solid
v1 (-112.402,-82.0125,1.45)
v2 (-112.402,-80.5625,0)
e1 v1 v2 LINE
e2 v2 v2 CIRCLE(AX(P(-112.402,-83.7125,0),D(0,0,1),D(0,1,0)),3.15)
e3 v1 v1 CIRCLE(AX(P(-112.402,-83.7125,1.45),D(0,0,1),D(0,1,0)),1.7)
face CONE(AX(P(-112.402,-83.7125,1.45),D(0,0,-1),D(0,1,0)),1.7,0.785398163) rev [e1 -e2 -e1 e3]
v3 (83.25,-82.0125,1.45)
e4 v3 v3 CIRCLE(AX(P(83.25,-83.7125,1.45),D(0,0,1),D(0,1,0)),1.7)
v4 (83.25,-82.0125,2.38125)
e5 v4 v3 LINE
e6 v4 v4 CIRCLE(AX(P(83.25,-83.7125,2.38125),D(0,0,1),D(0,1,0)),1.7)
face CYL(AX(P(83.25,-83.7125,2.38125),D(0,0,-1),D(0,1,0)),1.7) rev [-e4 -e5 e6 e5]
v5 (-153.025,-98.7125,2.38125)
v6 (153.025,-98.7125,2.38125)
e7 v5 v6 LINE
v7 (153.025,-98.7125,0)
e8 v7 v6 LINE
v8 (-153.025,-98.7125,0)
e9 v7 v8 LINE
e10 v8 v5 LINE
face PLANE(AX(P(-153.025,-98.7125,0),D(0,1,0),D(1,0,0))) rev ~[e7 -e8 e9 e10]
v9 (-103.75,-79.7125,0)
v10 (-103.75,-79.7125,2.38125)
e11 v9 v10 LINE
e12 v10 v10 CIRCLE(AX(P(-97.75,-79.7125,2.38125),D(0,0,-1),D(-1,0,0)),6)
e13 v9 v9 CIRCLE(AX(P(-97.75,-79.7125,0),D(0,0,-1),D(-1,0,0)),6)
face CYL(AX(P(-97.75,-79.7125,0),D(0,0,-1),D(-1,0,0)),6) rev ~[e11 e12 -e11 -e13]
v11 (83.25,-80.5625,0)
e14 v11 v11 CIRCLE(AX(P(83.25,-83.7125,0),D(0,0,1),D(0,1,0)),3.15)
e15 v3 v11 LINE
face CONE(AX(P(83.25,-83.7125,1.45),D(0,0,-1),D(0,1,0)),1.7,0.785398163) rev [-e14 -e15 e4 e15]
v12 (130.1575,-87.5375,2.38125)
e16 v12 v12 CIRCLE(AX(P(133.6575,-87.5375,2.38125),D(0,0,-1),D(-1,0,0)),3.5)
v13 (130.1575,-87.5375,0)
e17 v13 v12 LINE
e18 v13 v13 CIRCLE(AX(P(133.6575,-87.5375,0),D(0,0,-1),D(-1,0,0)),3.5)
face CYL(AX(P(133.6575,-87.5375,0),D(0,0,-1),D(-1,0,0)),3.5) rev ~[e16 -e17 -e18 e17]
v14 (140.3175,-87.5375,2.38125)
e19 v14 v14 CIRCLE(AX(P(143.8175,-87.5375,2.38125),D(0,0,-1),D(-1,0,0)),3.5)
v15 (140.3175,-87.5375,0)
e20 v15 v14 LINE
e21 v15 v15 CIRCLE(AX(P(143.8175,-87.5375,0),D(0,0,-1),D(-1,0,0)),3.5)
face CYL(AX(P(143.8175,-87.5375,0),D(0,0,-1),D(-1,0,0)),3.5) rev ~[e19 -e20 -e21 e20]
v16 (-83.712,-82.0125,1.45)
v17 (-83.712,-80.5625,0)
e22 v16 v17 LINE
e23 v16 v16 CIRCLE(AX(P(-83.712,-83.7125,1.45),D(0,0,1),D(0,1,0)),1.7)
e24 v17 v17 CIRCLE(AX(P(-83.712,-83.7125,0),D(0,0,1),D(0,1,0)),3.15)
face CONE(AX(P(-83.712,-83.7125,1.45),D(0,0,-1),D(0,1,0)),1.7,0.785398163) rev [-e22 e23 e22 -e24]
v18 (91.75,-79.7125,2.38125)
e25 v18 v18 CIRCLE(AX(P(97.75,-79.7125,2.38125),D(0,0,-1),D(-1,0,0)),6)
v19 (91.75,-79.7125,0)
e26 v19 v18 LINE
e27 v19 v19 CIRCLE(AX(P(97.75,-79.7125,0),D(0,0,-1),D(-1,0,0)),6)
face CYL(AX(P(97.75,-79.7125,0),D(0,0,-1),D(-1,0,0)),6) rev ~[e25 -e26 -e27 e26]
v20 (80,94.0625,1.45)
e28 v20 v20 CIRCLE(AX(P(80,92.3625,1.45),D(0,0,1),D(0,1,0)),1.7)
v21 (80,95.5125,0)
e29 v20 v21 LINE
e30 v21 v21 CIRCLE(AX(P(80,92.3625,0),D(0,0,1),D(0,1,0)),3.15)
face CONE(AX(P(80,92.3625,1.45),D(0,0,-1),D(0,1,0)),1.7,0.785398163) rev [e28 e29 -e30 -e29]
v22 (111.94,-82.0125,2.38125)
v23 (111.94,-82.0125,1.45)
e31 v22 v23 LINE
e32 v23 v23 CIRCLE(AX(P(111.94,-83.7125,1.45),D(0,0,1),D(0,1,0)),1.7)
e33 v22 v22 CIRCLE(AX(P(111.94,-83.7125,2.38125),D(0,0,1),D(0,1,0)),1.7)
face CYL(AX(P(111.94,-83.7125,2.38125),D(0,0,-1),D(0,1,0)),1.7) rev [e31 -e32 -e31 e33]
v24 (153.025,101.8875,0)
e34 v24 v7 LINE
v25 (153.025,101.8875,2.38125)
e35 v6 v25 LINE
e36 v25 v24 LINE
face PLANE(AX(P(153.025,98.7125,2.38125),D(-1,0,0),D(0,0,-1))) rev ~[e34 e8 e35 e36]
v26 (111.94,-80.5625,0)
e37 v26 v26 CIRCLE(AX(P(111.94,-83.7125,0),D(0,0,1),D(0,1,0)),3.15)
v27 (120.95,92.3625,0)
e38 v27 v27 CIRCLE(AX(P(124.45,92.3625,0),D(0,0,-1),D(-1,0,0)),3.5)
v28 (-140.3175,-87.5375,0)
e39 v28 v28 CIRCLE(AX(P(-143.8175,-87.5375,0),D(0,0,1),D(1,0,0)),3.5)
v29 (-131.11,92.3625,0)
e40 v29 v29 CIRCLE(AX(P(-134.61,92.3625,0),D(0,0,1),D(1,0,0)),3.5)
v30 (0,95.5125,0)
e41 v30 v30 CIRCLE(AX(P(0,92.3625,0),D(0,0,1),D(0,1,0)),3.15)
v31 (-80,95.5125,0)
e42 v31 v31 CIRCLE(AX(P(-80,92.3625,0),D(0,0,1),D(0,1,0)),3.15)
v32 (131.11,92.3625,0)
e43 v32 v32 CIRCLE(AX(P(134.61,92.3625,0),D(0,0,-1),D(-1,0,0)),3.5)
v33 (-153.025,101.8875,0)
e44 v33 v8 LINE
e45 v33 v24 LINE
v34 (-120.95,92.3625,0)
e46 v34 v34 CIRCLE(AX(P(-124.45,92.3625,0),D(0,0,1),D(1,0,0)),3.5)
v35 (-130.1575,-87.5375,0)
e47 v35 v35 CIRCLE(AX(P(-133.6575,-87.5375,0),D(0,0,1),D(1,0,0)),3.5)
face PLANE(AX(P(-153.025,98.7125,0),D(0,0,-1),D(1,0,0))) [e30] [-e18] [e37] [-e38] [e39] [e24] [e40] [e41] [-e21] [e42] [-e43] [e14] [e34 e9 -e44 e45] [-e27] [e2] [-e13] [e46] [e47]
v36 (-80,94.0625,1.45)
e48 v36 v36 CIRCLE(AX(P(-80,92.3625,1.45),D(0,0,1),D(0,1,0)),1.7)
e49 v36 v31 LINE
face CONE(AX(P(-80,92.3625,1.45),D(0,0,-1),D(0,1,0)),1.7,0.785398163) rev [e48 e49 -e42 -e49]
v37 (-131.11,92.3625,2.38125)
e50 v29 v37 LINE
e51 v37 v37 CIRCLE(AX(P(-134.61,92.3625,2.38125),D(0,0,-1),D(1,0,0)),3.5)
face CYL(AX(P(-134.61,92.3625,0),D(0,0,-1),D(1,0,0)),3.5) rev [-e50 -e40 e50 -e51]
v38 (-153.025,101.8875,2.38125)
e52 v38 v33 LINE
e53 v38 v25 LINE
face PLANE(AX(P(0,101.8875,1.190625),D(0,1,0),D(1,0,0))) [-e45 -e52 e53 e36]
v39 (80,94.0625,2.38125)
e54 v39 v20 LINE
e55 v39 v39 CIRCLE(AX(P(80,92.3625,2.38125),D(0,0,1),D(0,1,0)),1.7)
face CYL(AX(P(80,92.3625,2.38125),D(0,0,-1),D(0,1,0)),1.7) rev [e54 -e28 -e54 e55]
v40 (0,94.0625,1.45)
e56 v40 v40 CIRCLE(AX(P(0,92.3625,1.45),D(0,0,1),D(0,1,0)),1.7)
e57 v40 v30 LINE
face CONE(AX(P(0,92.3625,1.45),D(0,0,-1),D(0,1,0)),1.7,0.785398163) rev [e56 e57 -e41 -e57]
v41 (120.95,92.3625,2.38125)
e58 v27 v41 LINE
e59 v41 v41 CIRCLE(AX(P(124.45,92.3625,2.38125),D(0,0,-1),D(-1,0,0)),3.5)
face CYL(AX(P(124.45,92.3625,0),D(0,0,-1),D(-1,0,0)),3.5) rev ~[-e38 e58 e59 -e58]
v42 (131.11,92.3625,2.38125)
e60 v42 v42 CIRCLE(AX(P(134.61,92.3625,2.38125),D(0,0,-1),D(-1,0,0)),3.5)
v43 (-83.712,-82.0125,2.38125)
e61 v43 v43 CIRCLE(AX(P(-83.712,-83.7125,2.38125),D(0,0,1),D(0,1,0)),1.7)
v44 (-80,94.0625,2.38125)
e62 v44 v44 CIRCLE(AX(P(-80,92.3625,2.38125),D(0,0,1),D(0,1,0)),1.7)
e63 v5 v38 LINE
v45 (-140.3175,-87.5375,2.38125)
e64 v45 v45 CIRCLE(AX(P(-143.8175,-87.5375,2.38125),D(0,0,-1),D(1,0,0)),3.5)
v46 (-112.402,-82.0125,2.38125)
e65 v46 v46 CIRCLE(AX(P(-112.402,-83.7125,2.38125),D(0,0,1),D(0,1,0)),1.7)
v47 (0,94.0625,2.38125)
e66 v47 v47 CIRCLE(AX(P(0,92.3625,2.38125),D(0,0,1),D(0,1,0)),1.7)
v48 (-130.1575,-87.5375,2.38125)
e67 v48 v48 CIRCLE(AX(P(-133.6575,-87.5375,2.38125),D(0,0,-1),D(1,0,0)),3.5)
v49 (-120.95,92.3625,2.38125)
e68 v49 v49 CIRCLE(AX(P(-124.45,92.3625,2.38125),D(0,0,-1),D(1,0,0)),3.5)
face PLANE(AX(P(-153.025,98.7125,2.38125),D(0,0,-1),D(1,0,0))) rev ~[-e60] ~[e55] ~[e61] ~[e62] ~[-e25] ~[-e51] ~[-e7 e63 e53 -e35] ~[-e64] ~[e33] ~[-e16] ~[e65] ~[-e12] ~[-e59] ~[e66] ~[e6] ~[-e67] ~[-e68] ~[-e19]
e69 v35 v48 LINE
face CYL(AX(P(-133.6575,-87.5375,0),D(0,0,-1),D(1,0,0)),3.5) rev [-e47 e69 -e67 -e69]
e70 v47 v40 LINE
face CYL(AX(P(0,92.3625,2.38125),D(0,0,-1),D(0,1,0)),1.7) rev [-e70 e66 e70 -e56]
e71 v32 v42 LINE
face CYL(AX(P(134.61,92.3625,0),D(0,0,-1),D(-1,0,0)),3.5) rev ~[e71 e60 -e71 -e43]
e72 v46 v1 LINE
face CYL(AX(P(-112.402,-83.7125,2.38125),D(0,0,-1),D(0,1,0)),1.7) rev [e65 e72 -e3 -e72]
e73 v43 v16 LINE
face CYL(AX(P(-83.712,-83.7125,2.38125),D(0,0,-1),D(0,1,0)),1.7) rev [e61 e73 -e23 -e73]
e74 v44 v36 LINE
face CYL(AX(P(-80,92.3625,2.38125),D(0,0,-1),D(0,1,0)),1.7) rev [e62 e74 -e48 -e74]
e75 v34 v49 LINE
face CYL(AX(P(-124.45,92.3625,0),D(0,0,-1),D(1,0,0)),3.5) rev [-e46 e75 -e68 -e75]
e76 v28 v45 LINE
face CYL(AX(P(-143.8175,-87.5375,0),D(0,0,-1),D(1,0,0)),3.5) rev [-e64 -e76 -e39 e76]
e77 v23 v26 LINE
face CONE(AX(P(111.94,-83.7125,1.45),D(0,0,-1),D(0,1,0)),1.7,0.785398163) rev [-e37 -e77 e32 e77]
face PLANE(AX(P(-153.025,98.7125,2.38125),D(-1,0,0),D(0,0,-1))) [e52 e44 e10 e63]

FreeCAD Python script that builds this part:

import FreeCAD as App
import Part
import Sketcher

V = App.Vector
Q = App.Units.Quantity


def add_polygon(sketch, points):
    """Adds a closed chain of lines whose ends are joined by coincident constraints."""
    first, n = sketch.GeometryCount, len(points)
    for a, b in zip(points, points[1:] + points[:1]):
        sketch.addGeometry(Part.LineSegment(App.Vector(*a, 0), App.Vector(*b, 0)), False)
    for i in range(n):
        sketch.addConstraint(Sketcher.Constraint("Coincident", first + i, 2, first + (i + 1) % n, 1))

doc = App.newDocument("Part")
body = doc.addObject("PartDesign::Body", "Body")

# Sketch on XY plane
sketch1 = body.newObject("Sketcher::SketchObject", "Sketch")
sketch1.AttachmentSupport = (doc.getObject("XY_Plane"), [""])
sketch1.MapMode = "FlatFace"
add_polygon(sketch1, [(-153, -99), (153, -99), (153, 99), (-153, 99)])  # lines 0-3
sketch1.addConstraint(Sketcher.Constraint("Horizontal", 0))
sketch1.addConstraint(Sketcher.Constraint("Vertical", 1))
sketch1.addConstraint(Sketcher.Constraint("Horizontal", 2))
sketch1.addConstraint(Sketcher.Constraint("Vertical", 3))
sketch1.addConstraint(Sketcher.Constraint("Symmetric", 0, 2, 2, 2, -1, 1))
sketch1.addConstraint(Sketcher.Constraint("DistanceX", 0, 1, 0, 2, Q("306.05 mm")))
sketch1.addConstraint(Sketcher.Constraint("DistanceY", 1, 1, 1, 2, Q("197.425 mm")))
pad1 = body.newObject("PartDesign::Pad", "Pad")
pad1.Profile = sketch1
pad1.Length = 2.38125

# Sketch on XZ plane
sketch2 = body.newObject("Sketcher::SketchObject", "Sketch001")
sketch2.AttachmentSupport = (doc.getObject("XZ_Plane"), [""])
sketch2.MapMode = "FlatFace"
sketch2.AttachmentOffset = App.Placement(V(0, 0, -98.7125), App.Rotation())
add_polygon(sketch2, [(-153, 0), (-153, 2.4), (153, 2.4), (153, 0)])  # lines 0-3
sketch2.addConstraint(Sketcher.Constraint("Vertical", 0))
sketch2.addConstraint(Sketcher.Constraint("Horizontal", 1))
sketch2.addConstraint(Sketcher.Constraint("Vertical", 2))
sketch2.addConstraint(Sketcher.Constraint("Horizontal", 3))
sketch2.addConstraint(Sketcher.Constraint("Symmetric", 2, 2, 3, 2, -1, 1))
sketch2.addConstraint(Sketcher.Constraint("DistanceX", 1, 1, 1, 2, Q("306.05 mm")))
sketch2.addConstraint(Sketcher.Constraint("DistanceY", 0, 1, 0, 2, Q("2.38125 mm")))
pad2 = body.newObject("PartDesign::Pad", "Pad001")
pad2.Profile = sketch2
pad2.Length = 3.175
pad2.Reversed = True

# Sketch on XY plane
sketch3 = body.newObject("Sketcher::SketchObject", "Sketch002")
sketch3.AttachmentSupport = (doc.getObject("XY_Plane"), [""])
sketch3.MapMode = "FlatFace"
sketch3.addGeometry(Part.Circle(V(134.6, 92.4, 0), V(0, 0, 1), 3.5), False)
sketch3.addGeometry(Part.Circle(V(124.5, 92.4, 0), V(0, 0, 1), 3.5), False)
sketch3.addGeometry(Part.Circle(V(143.8, -87.5, 0), V(0, 0, 1), 3.5), False)
sketch3.addGeometry(Part.Circle(V(133.7, -87.5, 0), V(0, 0, 1), 3.5), False)
sketch3.addConstraint(Sketcher.Constraint("Equal", 0, 1))
sketch3.addConstraint(Sketcher.Constraint("Equal", 1, 2))
sketch3.addConstraint(Sketcher.Constraint("Equal", 2, 3))
sketch3.addConstraint(Sketcher.Constraint("Horizontal", 0, 3, 1, 3))
sketch3.addConstraint(Sketcher.Constraint("Horizontal", 2, 3, 3, 3))
sketch3.addConstraint(Sketcher.Constraint("Diameter", 0, Q("7 mm")))
sketch3.addConstraint(Sketcher.Constraint("DistanceY", 2, 3, 0, 3, Q("179.9 mm")))
sketch3.addConstraint(Sketcher.Constraint("DistanceX", -1, 1, 0, 3, Q("134.61 mm")))
sketch3.addConstraint(Sketcher.Constraint("DistanceX", -1, 1, 1, 3, Q("124.45 mm")))
sketch3.addConstraint(Sketcher.Constraint("DistanceX", 3, 3, 2, 3, Q("10.16 mm")))
sketch3.addConstraint(Sketcher.Constraint("DistanceY", -1, 1, 0, 3, Q("92.3625 mm")))
sketch3.addConstraint(Sketcher.Constraint("DistanceX", -1, 1, 2, 3, Q("143.8175 mm")))
pocket1 = body.newObject("PartDesign::Pocket", "Pocket")
pocket1.Profile = sketch3
pocket1.Type = "ThroughAll"
pocket1.Reversed = True
doc.recompute()

mirrored = body.newObject("PartDesign::Mirrored", "Mirrored")
mirrored.Originals = [pocket1]
mirrored.MirrorPlane = (doc.getObject("YZ_Plane"), [""])
body.Tip = mirrored

# Sketch on YZ plane
sketch4 = body.newObject("Sketcher::SketchObject", "Sketch003")
sketch4.AttachmentSupport = (doc.getObject("YZ_Plane"), [""])
sketch4.MapMode = "FlatFace"
sketch4.AttachmentOffset = App.Placement(V(0, 0, 111.94), App.Rotation())
add_polygon(sketch4, [(-83.7, 2.4), (-83.7, 0), (-80.6, 0), (-82, 1.4), (-82, 2.4)])  # lines 0-4
sketch4.addGeometry(Part.LineSegment(V(-83.7, 0, 0), V(-83.7, 2.4, 0)), True)  # axis
sketch4.addConstraint(Sketcher.Constraint("Vertical", 0))
sketch4.addConstraint(Sketcher.Constraint("Horizontal", 1))
sketch4.addConstraint(Sketcher.Constraint("Vertical", 3))
sketch4.addConstraint(Sketcher.Constraint("Horizontal", 4))
sketch4.addConstraint(Sketcher.Constraint("Vertical", 5))
sketch4.addConstraint(Sketcher.Constraint("Coincident", 5, 1, 0, 2))
sketch4.addConstraint(Sketcher.Constraint("PointOnObject", 0, 2, -1))
sketch4.addConstraint(Sketcher.Constraint("Horizontal", 3, 2, 5, 2))
sketch4.addConstraint(Sketcher.Constraint("Angle", 2, Q("135 deg")))
sketch4.addConstraint(Sketcher.Constraint("DistanceX", 4, 2, 4, 1, Q("1.7 mm")))
sketch4.addConstraint(Sketcher.Constraint("DistanceX", 1, 1, 1, 2, Q("3.15 mm")))
sketch4.addConstraint(Sketcher.Constraint("DistanceY", 0, 2, 0, 1, Q("2.38125 mm")))
sketch4.addConstraint(Sketcher.Constraint("DistanceX", 0, 2, -1, 1, Q("83.7125 mm")))
groove = body.newObject("PartDesign::Groove", "Groove")
groove.Profile = sketch4
groove.ReferenceAxis = (sketch4, ["Axis0"])
groove.Angle = 360
doc.recompute()

linearpattern = body.newObject("PartDesign::LinearPattern", "LinearPattern")
linearpattern.Originals = [groove]
linearpattern.Direction = (doc.getObject("X_Axis"), [""])
linearpattern.Mode = "offset"
linearpattern.Offset = 28.69
linearpattern.Occurrences = 2
linearpattern.Reversed = True
body.Tip = linearpattern
doc.recompute()

datumline = body.newObject("PartDesign::Line", "DatumLine")
datumline.Placement = App.Placement(V(0, 0, 0), App.Rotation(V(0, 0, 1), V(-0.178487097, 0.983942253, 0)))
linearpattern2 = body.newObject("PartDesign::LinearPattern", "LinearPattern001")
linearpattern2.Originals = [groove]
linearpattern2.Direction = (datumline, [""])
linearpattern2.Mode = "offset"
linearpattern2.Offset = 178.94851
linearpattern2.Occurrences = 2
body.Tip = linearpattern2
doc.recompute()

datumline2 = body.newObject("PartDesign::Line", "DatumLine001")
datumline2.Placement = App.Placement(V(0, 0, 0), App.Rotation(V(0, 0, 1), V(-0.536507945, 0.843895269, 0)))
linearpattern3 = body.newObject("PartDesign::LinearPattern", "LinearPattern002")
linearpattern3.Originals = [groove]
linearpattern3.Direction = (datumline2, [""])
linearpattern3.Mode = "offset"
linearpattern3.Offset = 208.645559
linearpattern3.Occurrences = 2
body.Tip = linearpattern3
doc.recompute()

datumline3 = body.newObject("PartDesign::Line", "DatumLine002")
datumline3.Placement = App.Placement(V(0, 0, 0), App.Rotation(V(0, 0, 1), V(-0.736905481, 0.675995793, 0)))
linearpattern4 = body.newObject("PartDesign::LinearPattern", "LinearPattern003")
linearpattern4.Originals = [groove]
linearpattern4.Direction = (datumline3, [""])
linearpattern4.Mode = "offset"
linearpattern4.Offset = 260.467597
linearpattern4.Occurrences = 2
body.Tip = linearpattern4
doc.recompute()

linearpattern5 = body.newObject("PartDesign::LinearPattern", "LinearPattern004")
linearpattern5.Originals = [groove]
linearpattern5.Direction = (doc.getObject("X_Axis"), [""])
linearpattern5.Mode = "offset"
linearpattern5.Offset = 224.342
linearpattern5.Occurrences = 2
linearpattern5.Reversed = True
body.Tip = linearpattern5
doc.recompute()

linearpattern6 = body.newObject("PartDesign::LinearPattern", "LinearPattern005")
linearpattern6.Originals = [groove]
linearpattern6.Direction = (doc.getObject("X_Axis"), [""])
linearpattern6.Mode = "offset"
linearpattern6.Offset = 195.652
linearpattern6.Occurrences = 2
linearpattern6.Reversed = True
body.Tip = linearpattern6

# Sketch on XY plane
sketch5 = body.newObject("Sketcher::SketchObject", "Sketch004")
sketch5.AttachmentSupport = (doc.getObject("XY_Plane"), [""])
sketch5.MapMode = "FlatFace"
sketch5.addGeometry(Part.Circle(V(98, -80, 0), V(0, 0, 1), 6), False)
sketch5.addGeometry(Part.Circle(V(-98, -80, 0), V(0, 0, 1), 6), False)
sketch5.addConstraint(Sketcher.Constraint("Equal", 0, 1))
sketch5.addConstraint(Sketcher.Constraint("Symmetric", 0, 3, 1, 3, -2))
sketch5.addConstraint(Sketcher.Constraint("Diameter", 0, Q("12 mm")))
sketch5.addConstraint(Sketcher.Constraint("DistanceX", 1, 3, 0, 3, Q("195.5 mm")))
sketch5.addConstraint(Sketcher.Constraint("DistanceY", 0, 3, -1, 1, Q("79.7125 mm")))
pocket2 = body.newObject("PartDesign::Pocket", "Pocket001")
pocket2.Profile = sketch5
pocket2.Type = "ThroughAll"
pocket2.Reversed = True

doc.recompute()
